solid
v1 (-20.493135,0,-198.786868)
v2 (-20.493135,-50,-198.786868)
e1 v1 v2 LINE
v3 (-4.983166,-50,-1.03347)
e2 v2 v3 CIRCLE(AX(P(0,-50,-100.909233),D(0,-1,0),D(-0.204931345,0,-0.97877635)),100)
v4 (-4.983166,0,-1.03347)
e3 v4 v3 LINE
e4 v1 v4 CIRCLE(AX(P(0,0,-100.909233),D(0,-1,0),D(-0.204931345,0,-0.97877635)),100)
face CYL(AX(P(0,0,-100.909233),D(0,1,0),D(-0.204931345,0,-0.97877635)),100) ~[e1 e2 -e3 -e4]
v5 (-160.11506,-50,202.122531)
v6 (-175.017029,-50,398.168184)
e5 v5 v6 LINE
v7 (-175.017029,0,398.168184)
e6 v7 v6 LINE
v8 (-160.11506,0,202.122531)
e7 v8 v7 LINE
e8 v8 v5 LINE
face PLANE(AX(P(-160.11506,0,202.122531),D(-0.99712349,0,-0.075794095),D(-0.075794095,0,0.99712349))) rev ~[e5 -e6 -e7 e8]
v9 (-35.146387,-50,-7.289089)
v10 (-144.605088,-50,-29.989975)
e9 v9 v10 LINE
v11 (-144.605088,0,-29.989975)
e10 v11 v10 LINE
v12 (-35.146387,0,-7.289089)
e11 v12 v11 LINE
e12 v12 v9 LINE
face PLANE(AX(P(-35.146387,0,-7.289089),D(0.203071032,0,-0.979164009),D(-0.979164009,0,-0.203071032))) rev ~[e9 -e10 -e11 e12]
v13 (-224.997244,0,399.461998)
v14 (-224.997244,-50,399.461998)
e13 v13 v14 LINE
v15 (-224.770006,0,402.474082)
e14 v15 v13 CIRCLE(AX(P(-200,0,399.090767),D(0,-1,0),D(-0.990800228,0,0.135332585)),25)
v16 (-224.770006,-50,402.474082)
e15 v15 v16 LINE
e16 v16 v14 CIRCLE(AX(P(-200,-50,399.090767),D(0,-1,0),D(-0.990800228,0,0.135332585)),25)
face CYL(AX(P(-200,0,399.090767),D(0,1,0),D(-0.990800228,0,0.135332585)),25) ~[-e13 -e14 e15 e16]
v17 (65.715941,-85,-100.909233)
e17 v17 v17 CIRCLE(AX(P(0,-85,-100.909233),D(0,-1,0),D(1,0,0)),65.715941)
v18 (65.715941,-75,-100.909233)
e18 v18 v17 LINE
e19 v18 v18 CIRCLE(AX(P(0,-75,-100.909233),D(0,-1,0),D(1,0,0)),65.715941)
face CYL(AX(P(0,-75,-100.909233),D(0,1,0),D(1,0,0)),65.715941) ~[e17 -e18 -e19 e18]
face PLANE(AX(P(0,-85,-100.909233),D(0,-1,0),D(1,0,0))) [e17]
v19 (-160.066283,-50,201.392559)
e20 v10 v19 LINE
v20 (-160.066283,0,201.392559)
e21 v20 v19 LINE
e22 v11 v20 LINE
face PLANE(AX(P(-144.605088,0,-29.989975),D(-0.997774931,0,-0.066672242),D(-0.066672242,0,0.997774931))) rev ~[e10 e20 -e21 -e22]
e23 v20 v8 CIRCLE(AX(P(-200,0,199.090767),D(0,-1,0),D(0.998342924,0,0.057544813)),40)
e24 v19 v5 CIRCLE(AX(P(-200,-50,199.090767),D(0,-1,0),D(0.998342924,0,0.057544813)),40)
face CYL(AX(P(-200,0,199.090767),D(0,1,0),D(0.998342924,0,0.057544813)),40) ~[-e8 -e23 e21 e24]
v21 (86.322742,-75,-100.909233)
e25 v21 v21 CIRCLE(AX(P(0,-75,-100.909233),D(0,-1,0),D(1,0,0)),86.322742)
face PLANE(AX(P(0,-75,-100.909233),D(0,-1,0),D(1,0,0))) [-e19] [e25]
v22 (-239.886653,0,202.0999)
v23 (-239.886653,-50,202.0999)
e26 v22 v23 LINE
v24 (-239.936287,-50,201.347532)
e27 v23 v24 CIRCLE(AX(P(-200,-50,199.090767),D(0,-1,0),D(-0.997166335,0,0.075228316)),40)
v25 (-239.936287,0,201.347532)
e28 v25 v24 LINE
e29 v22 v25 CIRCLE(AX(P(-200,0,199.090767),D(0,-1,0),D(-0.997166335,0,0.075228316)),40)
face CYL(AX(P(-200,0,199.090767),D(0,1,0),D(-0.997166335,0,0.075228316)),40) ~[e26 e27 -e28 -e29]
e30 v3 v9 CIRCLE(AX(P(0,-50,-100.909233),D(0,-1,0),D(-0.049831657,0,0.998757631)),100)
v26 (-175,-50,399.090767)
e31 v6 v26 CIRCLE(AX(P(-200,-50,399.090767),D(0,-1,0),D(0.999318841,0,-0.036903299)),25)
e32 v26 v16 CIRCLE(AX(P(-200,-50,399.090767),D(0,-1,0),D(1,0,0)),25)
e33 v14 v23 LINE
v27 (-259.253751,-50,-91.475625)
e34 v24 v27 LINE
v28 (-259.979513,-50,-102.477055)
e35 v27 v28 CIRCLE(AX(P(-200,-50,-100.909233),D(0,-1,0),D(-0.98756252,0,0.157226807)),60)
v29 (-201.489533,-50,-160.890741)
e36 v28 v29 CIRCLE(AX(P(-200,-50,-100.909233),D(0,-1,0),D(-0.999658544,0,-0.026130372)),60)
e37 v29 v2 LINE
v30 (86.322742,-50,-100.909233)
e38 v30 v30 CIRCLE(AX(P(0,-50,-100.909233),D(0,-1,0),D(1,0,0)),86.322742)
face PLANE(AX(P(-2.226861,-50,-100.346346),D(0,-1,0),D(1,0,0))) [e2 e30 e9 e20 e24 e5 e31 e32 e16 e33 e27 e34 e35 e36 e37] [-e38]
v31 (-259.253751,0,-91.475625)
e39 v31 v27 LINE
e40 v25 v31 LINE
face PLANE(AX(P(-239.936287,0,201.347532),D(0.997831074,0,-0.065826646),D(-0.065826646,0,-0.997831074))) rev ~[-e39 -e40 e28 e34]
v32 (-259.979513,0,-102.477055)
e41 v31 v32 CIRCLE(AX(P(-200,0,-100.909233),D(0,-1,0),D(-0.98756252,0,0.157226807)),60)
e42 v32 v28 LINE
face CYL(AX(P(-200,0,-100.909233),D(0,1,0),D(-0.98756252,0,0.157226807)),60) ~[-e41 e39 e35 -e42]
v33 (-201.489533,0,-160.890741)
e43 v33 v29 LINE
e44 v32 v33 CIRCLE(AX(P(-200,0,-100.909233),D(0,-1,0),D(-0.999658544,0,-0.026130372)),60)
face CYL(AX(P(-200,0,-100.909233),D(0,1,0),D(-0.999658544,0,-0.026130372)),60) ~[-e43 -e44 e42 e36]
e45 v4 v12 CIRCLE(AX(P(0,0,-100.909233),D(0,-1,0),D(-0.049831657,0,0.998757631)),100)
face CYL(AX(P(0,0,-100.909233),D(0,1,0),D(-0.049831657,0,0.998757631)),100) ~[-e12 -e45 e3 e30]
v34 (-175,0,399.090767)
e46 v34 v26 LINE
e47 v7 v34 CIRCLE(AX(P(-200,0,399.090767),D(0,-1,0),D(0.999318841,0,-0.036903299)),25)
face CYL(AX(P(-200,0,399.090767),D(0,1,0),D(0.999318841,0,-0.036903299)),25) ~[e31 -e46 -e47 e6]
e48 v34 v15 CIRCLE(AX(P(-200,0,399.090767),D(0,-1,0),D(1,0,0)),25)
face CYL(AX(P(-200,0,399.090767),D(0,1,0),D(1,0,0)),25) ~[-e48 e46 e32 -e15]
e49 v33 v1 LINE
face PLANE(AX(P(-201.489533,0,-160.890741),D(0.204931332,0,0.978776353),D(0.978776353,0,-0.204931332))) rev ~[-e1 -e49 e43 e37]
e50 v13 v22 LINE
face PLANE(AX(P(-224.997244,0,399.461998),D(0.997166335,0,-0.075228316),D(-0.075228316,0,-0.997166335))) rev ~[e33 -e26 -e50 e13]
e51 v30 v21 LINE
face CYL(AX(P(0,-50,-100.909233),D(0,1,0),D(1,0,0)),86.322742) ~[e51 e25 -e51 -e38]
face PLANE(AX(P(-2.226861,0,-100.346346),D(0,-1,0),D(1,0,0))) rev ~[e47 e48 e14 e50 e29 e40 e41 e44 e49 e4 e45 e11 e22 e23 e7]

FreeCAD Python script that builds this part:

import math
import FreeCAD as App
import Part
import Sketcher
Q = App.Units.Quantity

doc = App.newDocument("Part")
body = doc.addObject("PartDesign::Body", "Body")

# Sketch on XZ plane
sketch1 = doc.addObject("Sketcher::SketchObject", "Sketch")
body.addObject(sketch1)
sketch1.AttachmentSupport = (doc.XZ_Plane, [""])
sketch1.MapMode = "FlatFace"
sketch1.addGeometry([
    Part.ArcOfCircle(Part.Circle(App.Vector(0, -100.9, 0), App.Vector(0, 0, 1), 100), math.radians(-102), math.radians(93)),  # 0
    Part.ArcOfCircle(Part.Circle(App.Vector(0, -100.9, 0), App.Vector(0, 0, 1), 100), math.radians(92.86), math.radians(110.58)),  # 1
    Part.LineSegment(App.Vector(-35.1, -7.3, 0), App.Vector(-144.6, -30, 0)),  # 2
    Part.LineSegment(App.Vector(-144.6, -30, 0), App.Vector(-160.1, 201.4, 0)),  # 3
    Part.ArcOfCircle(Part.Circle(App.Vector(-200, 199.1, 0), App.Vector(0, 0, 1), 40), math.radians(3.3), math.radians(4.35)),  # 4
    Part.LineSegment(App.Vector(-160.1, 202.1, 0), App.Vector(-175, 398.2, 0)),  # 5
    Part.ArcOfCircle(Part.Circle(App.Vector(-200, 399.1, 0), App.Vector(0, 0, 1), 25), math.radians(-2.11), math.radians(0)),  # 6
    Part.ArcOfCircle(Part.Circle(App.Vector(-200, 399.1, 0), App.Vector(0, 0, 1), 25), math.radians(0), math.radians(172)),  # 7
    Part.ArcOfCircle(Part.Circle(App.Vector(-200, 399.1, 0), App.Vector(0, 0, 1), 25), math.radians(172.22), math.radians(179.15)),  # 8
    Part.LineSegment(App.Vector(-225, 399.5, 0), App.Vector(-239.9, 202.1, 0)),  # 9
    Part.ArcOfCircle(Part.Circle(App.Vector(-200, 199.1, 0), App.Vector(0, 0, 1), 40), math.radians(175.69), math.radians(176.77)),  # 10
    Part.LineSegment(App.Vector(-239.9, 201.3, 0), App.Vector(-259.3, -91.5, 0)),  # 11
    Part.ArcOfCircle(Part.Circle(App.Vector(-200, -100.9, 0), App.Vector(0, 0, 1), 60), math.radians(170.95), math.radians(181.5)),  # 12
    Part.ArcOfCircle(Part.Circle(App.Vector(-200, -100.9, 0), App.Vector(0, 0, 1), 60), math.radians(-179), math.radians(-91)),  # 13
    Part.LineSegment(App.Vector(-201.5, -160.9, 0), App.Vector(-20.5, -198.8, 0)),  # 14
], False)
sketch1.addConstraint([
    Sketcher.Constraint("Tangent", 0, 2, 1, 1),
    Sketcher.Constraint("Coincident", 1, 2, 2, 1),
    Sketcher.Constraint("Coincident", 2, 2, 3, 1),
    Sketcher.Constraint("Coincident", 3, 2, 4, 1),
    Sketcher.Constraint("Tangent", 4, 2, 5, 1),
    Sketcher.Constraint("Coincident", 5, 2, 6, 1),
    Sketcher.Constraint("Tangent", 6, 2, 7, 1),
    Sketcher.Constraint("Tangent", 7, 2, 8, 1),
    Sketcher.Constraint("Coincident", 8, 2, 9, 1),
    Sketcher.Constraint("Tangent", 9, 2, 10, 1),
    Sketcher.Constraint("Coincident", 10, 2, 11, 1),
    Sketcher.Constraint("Coincident", 11, 2, 12, 1),
    Sketcher.Constraint("Tangent", 12, 2, 13, 1),
    Sketcher.Constraint("Coincident", 13, 2, 14, 1),
    Sketcher.Constraint("Tangent", 14, 2, 0, 1),
    Sketcher.Constraint("Coincident", 8, 3, 6, 3),
    Sketcher.Constraint("Coincident", 10, 3, 4, 3),
    Sketcher.Constraint("Equal", 0, 1),
    Sketcher.Constraint("Equal", 4, 10),
    Sketcher.Constraint("Equal", 12, 13),
    Sketcher.Constraint("PointOnObject", 0, 3, -2),
    Sketcher.Constraint("Horizontal", 1, 3, 12, 3),
    Sketcher.Constraint("Horizontal", 8, 3, 6, 2),
    Sketcher.Constraint("Vertical", 4, 3, 6, 3),
    Sketcher.Constraint("Vertical", 10, 3, 12, 3),
    Sketcher.Constraint("Radius", 0, Q("100 mm")),
    Sketcher.Constraint("Radius", 4, Q("40 mm")),
    Sketcher.Constraint("Radius", 6, Q("25 mm")),
    Sketcher.Constraint("Radius", 12, Q("60 mm")),
    Sketcher.Constraint("DistanceX", 4, 3, -1, 1, Q("200 mm")),
    Sketcher.Constraint("DistanceY", 1, 3, 4, 3, Q("300 mm")),
    Sketcher.Constraint("DistanceY", 4, 3, 6, 3, Q("200 mm")),
    Sketcher.Constraint("DistanceY", 10, 2, 4, 2, Q("0.774999 mm")),
    Sketcher.Constraint("Distance", 14, Q("184.921099 mm")),
    Sketcher.Constraint("DistanceY", -1, 1, 9, 2, Q("202.0999 mm")),
    Sketcher.Constraint("DistanceX", 2, 2, 1, 2, Q("109.458701 mm")),
    Sketcher.Constraint("DistanceY", 9, 2, 8, 2, Q("197.362098 mm")),
    Sketcher.Constraint("DistanceY", 14, 2, 0, 2, Q("197.753398 mm")),
    Sketcher.Constraint("Distance", 11, Q("293.459649 mm")),
    Sketcher.Constraint("DistanceY", 1, 2, -1, 1, Q("7.289089 mm")),
    Sketcher.Constraint("DistanceY", -1, 1, 3, 2, Q("201.392559 mm")),
    Sketcher.Constraint("DistanceX", 5, 2, -1, 1, Q("175.017029 mm")),
    Sketcher.Constraint("DistanceY", -1, 1, 7, 2, Q("402.474082 mm")),
    Sketcher.Constraint("DistanceY", 11, 2, 2, 2, Q("61.485649 mm")),
    Sketcher.Constraint("DistanceX", 12, 2, 11, 2, Q("0.725761 mm")),
])
pad1 = doc.addObject("PartDesign::Pad", "Pad")
body.addObject(pad1)
pad1.Profile = sketch1
pad1.Length = 50

# Sketch on XZ plane
sketch2 = doc.addObject("Sketcher::SketchObject", "Sketch001")
body.addObject(sketch2)
sketch2.AttachmentSupport = (doc.XZ_Plane, [""])
sketch2.MapMode = "FlatFace"
sketch2.AttachmentOffset = App.Placement(App.Vector(0, 0, 50), App.Rotation())
sketch2.addGeometry(Part.Circle(App.Vector(0, -101, 0), App.Vector(0, 0, 1), 86), False)
sketch2.addConstraint([
    Sketcher.Constraint("PointOnObject", 0, 3, -2),
    Sketcher.Constraint("Diameter", 0, Q("172.645483 mm")),
    Sketcher.Constraint("DistanceY", 0, 3, -1, 1, Q("100.909233 mm")),
])
pad2 = doc.addObject("PartDesign::Pad", "Pad001")
body.addObject(pad2)
pad2.Profile = sketch2
pad2.Length = 25

# Sketch on XZ plane
sketch3 = doc.addObject("Sketcher::SketchObject", "Sketch002")
body.addObject(sketch3)
sketch3.AttachmentSupport = (doc.XZ_Plane, [""])
sketch3.MapMode = "FlatFace"
sketch3.AttachmentOffset = App.Placement(App.Vector(0, 0, 75), App.Rotation())
sketch3.addGeometry(Part.Circle(App.Vector(0, -101, 0), App.Vector(0, 0, 1), 66), False)
sketch3.addConstraint([
    Sketcher.Constraint("PointOnObject", 0, 3, -2),
    Sketcher.Constraint("Diameter", 0, Q("131.431881 mm")),
    Sketcher.Constraint("DistanceY", 0, 3, -1, 1, Q("100.909233 mm")),
])
pad3 = doc.addObject("PartDesign::Pad", "Pad002")
body.addObject(pad3)
pad3.Profile = sketch3
pad3.Length = 10

doc.recompute()
